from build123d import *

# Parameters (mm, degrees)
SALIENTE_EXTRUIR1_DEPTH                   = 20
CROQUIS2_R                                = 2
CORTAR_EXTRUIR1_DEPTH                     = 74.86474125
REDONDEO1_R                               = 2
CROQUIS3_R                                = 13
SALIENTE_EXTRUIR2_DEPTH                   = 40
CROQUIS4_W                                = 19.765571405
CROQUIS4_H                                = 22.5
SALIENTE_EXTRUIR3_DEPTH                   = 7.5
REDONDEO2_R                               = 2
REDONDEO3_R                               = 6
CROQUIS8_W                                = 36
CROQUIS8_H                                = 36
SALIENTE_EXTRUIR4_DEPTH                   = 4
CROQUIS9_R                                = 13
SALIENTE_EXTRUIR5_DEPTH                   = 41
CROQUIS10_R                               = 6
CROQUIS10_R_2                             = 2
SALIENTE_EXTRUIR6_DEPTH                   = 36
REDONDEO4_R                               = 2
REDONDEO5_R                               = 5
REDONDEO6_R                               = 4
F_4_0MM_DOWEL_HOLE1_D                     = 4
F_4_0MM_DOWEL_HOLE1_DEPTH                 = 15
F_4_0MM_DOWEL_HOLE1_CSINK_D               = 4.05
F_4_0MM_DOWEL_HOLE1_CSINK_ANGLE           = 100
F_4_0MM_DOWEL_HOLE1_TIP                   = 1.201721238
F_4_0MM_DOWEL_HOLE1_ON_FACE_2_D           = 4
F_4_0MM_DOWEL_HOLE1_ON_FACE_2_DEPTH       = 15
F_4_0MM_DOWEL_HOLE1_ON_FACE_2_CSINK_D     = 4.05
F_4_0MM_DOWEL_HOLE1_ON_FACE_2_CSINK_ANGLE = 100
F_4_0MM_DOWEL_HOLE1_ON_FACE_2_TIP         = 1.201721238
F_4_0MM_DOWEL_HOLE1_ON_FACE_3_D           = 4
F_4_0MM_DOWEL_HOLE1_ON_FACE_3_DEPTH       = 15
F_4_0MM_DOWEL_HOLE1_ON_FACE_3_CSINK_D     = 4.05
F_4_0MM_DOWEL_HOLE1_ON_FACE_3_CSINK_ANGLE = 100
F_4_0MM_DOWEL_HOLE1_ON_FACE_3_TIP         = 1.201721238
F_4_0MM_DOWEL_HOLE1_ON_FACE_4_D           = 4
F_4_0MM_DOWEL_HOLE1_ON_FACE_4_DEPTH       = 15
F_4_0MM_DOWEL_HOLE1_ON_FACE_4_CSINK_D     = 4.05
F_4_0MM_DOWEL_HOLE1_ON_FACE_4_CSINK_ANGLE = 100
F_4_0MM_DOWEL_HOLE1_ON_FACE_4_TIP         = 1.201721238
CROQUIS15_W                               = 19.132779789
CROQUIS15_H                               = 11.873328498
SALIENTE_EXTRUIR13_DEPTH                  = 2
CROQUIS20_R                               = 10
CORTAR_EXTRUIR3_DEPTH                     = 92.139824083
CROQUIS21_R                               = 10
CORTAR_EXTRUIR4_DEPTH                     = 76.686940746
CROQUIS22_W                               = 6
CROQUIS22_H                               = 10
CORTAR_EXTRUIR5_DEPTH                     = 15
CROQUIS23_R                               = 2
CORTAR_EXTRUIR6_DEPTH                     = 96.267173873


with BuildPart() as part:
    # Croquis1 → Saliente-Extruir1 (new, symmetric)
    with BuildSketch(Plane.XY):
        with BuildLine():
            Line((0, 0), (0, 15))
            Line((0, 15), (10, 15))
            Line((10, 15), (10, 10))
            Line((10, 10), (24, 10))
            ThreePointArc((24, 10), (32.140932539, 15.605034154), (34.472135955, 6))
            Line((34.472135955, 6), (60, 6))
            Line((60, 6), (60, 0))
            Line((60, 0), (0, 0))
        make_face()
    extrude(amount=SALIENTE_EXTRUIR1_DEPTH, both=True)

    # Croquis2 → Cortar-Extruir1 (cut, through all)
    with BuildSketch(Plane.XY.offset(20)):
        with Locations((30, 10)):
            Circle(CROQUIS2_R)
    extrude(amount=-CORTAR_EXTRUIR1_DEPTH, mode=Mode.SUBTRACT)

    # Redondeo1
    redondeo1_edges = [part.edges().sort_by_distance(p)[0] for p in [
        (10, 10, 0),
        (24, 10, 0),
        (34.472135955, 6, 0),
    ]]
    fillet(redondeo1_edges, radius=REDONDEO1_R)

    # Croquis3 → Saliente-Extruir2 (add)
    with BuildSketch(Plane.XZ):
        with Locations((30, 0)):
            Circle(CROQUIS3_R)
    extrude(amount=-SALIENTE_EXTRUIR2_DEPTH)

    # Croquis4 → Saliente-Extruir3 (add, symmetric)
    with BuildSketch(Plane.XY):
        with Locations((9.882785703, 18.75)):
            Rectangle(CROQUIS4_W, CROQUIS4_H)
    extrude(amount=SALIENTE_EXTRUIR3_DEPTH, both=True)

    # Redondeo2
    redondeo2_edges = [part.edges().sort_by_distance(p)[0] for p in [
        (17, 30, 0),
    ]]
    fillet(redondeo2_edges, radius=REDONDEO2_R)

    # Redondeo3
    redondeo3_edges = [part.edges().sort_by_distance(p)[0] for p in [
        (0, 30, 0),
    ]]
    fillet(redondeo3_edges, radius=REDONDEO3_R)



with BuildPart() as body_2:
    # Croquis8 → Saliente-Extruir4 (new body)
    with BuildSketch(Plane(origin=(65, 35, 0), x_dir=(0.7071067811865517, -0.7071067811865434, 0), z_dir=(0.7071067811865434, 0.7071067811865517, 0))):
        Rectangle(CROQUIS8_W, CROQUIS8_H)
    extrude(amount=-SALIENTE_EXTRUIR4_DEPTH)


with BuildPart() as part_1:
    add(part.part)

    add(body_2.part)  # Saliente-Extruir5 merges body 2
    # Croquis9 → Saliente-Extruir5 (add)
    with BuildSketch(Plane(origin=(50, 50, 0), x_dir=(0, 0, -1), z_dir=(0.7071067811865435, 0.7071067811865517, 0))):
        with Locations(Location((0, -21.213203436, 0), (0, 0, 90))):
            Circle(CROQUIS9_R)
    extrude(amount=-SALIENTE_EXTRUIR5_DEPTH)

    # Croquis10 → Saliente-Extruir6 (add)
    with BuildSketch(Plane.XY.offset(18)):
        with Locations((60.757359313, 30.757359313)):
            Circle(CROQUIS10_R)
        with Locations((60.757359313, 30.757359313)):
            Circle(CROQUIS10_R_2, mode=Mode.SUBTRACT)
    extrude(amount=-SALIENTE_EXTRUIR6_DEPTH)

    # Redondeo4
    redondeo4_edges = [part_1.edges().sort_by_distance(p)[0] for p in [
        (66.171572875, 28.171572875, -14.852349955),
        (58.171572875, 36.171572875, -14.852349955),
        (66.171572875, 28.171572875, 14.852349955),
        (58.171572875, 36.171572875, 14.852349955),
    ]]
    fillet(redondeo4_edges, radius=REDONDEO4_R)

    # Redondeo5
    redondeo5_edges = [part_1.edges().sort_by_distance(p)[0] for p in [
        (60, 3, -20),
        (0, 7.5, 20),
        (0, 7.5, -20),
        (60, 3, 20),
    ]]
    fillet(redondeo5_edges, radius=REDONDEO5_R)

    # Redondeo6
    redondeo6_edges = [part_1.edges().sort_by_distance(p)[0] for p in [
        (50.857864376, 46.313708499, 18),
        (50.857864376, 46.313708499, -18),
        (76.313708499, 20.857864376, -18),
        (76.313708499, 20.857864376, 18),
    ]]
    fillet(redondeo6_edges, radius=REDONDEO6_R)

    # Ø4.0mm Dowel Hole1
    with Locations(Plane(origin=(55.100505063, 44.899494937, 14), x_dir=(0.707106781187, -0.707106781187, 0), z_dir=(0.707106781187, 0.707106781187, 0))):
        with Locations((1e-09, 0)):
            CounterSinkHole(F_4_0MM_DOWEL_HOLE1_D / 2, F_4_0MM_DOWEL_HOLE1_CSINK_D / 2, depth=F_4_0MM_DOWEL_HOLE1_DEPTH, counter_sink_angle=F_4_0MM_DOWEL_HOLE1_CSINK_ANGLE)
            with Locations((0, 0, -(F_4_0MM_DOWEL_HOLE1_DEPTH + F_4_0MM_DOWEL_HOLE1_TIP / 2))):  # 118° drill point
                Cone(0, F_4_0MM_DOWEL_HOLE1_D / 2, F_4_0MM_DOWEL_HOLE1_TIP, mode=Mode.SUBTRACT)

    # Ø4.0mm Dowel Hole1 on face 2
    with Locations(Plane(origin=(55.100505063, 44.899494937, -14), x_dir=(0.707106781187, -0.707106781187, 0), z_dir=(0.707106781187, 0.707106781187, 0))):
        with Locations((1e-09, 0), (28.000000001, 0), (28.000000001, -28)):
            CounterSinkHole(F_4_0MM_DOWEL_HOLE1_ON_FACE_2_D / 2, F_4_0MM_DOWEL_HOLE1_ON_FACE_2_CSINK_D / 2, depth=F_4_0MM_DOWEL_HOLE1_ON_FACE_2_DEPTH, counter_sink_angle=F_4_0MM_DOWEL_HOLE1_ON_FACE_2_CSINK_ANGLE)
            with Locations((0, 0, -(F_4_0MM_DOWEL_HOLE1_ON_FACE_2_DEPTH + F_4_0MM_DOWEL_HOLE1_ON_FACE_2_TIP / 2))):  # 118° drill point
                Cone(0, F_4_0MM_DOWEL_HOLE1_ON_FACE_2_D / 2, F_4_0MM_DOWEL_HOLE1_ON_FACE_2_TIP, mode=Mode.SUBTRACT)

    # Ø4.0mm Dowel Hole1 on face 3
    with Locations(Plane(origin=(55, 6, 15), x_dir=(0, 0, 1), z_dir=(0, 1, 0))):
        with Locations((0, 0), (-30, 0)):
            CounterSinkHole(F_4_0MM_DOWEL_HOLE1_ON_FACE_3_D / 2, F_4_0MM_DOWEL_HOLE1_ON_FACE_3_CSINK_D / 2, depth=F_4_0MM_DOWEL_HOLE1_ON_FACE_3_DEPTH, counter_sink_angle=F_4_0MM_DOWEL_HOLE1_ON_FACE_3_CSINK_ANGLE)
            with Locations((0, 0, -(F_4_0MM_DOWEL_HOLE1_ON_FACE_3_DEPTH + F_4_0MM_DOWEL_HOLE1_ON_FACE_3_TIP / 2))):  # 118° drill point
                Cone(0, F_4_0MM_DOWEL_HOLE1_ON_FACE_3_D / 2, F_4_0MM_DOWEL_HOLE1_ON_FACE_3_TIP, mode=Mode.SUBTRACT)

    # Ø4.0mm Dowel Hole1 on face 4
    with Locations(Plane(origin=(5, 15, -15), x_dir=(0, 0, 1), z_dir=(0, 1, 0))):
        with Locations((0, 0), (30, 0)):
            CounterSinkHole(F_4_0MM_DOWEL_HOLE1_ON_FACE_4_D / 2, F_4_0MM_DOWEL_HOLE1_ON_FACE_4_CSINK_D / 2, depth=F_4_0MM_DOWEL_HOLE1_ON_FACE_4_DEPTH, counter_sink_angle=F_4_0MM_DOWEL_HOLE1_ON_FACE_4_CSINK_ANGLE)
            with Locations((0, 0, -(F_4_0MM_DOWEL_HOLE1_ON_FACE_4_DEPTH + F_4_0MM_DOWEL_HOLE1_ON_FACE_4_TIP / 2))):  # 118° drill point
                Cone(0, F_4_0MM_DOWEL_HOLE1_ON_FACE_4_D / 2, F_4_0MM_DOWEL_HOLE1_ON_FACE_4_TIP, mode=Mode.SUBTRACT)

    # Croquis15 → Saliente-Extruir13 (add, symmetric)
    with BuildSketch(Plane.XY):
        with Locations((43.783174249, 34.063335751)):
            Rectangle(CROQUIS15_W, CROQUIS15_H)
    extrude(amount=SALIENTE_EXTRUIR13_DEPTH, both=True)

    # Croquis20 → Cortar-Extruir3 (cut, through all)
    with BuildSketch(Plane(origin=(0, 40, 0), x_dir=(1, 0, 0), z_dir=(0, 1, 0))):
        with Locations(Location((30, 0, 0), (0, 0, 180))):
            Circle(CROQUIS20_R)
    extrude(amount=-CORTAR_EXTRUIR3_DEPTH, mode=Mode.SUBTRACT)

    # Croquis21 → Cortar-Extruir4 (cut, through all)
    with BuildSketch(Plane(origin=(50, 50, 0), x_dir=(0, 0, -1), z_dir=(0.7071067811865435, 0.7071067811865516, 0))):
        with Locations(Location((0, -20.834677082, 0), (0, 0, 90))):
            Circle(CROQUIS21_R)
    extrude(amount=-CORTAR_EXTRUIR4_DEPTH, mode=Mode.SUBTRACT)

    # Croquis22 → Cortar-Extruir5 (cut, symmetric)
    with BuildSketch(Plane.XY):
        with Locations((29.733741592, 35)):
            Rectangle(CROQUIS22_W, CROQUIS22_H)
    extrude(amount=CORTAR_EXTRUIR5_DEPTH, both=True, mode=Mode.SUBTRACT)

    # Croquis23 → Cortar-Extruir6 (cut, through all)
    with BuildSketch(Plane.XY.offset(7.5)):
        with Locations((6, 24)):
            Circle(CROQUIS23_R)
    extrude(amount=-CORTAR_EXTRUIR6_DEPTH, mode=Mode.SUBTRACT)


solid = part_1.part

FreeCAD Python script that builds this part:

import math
import FreeCAD as App
import Part
import Sketcher
Q = App.Units.Quantity


def edges_at(feature, points):
    """Names of the edges that pass closest to the given points."""
    edges = feature.Shape.Edges
    near = lambda p: min(range(len(edges)), key=lambda i: edges[i].distToShape(Part.Vertex(*p))[0])
    return sorted({f"Edge{near(p) + 1}" for p in points})

doc = App.newDocument("Part")
body = doc.addObject("PartDesign::Body", "Body")

sketch1 = doc.addObject("Sketcher::SketchObject", "Sketch")
body.addObject(sketch1)
sketch1.AttachmentSupport = (doc.XY_Plane, [""])
sketch1.MapMode = "FlatFace"
sketch1.addGeometry([
    Part.LineSegment(App.Vector(0, 15, 0), App.Vector(0, 0, 0)),
    Part.LineSegment(App.Vector(0, 0, 0), App.Vector(60, 0, 0)),
    Part.LineSegment(App.Vector(60, 0, 0), App.Vector(60, 6, 0)),
    Part.LineSegment(App.Vector(60, 6, 0), App.Vector(34.472136, 6, 0)),
    Part.ArcOfCircle(Part.Circle(App.Vector(30, 10, 0), App.Vector(0, 0, 1), 6), math.radians(-41.810315), math.radians(180)),
    Part.LineSegment(App.Vector(24, 10, 0), App.Vector(10, 10, 0)),
    Part.LineSegment(App.Vector(10, 10, 0), App.Vector(10, 15, 0)),
    Part.LineSegment(App.Vector(10, 15, 0), App.Vector(0, 15, 0)),
], False)
sketch1.addConstraint([
    Sketcher.Constraint("Coincident", 0, 2, 1, 1),
    Sketcher.Constraint("Coincident", 1, 2, 2, 1),
    Sketcher.Constraint("Coincident", 2, 2, 3, 1),
    Sketcher.Constraint("Coincident", 3, 2, 4, 1),
    Sketcher.Constraint("Coincident", 4, 2, 5, 1),
    Sketcher.Constraint("Coincident", 5, 2, 6, 1),
    Sketcher.Constraint("Coincident", 6, 2, 7, 1),
    Sketcher.Constraint("Coincident", 7, 2, 0, 1),
    Sketcher.Constraint("Vertical", 0),
    Sketcher.Constraint("Horizontal", 1),
    Sketcher.Constraint("Vertical", 2),
    Sketcher.Constraint("Horizontal", 3),
    Sketcher.Constraint("Horizontal", 5),
    Sketcher.Constraint("Vertical", 6),
    Sketcher.Constraint("Horizontal", 7),
    Sketcher.Constraint("Coincident", 0, 2, -1, 1),
    Sketcher.Constraint("Radius", 4, Q("6 mm")),
    Sketcher.Constraint("DistanceX", 1, 1, 1, 2, Q("60 mm")),
    Sketcher.Constraint("DistanceX", 5, 2, 5, 1, Q("14 mm")),
    Sketcher.Constraint("DistanceX", 7, 2, 7, 1, Q("10 mm")),
    Sketcher.Constraint("DistanceY", 0, 2, 0, 1, Q("15 mm")),
    Sketcher.Constraint("DistanceY", 2, 1, 2, 2, Q("6 mm")),
    Sketcher.Constraint("DistanceY", 6, 1, 6, 2, Q("5 mm")),
    Sketcher.Constraint("DistanceY", -1, 1, 4, 3, Q("10 mm")),
])
pad1 = doc.addObject("PartDesign::Pad", "Pad")
body.addObject(pad1)
pad1.Profile = sketch1
pad1.Length = 40
pad1.Midplane = True

sketch2 = doc.addObject("Sketcher::SketchObject", "Sketch001")
body.addObject(sketch2)
sketch2.AttachmentSupport = (doc.XY_Plane, [""])
sketch2.MapMode = "FlatFace"
sketch2.AttachmentOffset = App.Placement(App.Vector(0, 0, 20), App.Rotation())
sketch2.addGeometry(Part.Circle(App.Vector(30, 10, 0), App.Vector(0, 0, 1), 2), False)
sketch2.addConstraint([
    Sketcher.Constraint("Diameter", 0, Q("4 mm")),
    Sketcher.Constraint("DistanceX", -1, 1, 0, 3, Q("30 mm")),
    Sketcher.Constraint("DistanceY", -1, 1, 0, 3, Q("10 mm")),
])
pocket1 = doc.addObject("PartDesign::Pocket", "Pocket")
body.addObject(pocket1)
pocket1.Profile = sketch2
pocket1.Type = "ThroughAll"
doc.recompute()

fillet = doc.addObject("PartDesign::Fillet", "Fillet")
body.addObject(fillet)
fillet.Base = (pocket1, edges_at(pocket1, [(10, 10, 0), (24, 10, 0), (34.472, 6, 0)]))
fillet.Radius = 2

sketch3 = doc.addObject("Sketcher::SketchObject", "Sketch002")
body.addObject(sketch3)
sketch3.AttachmentSupport = (doc.XZ_Plane, [""])
sketch3.MapMode = "FlatFace"
sketch3.addGeometry(Part.Circle(App.Vector(30, 0, 0), App.Vector(0, 0, 1), 13), False)
sketch3.addConstraint([
    Sketcher.Constraint("PointOnObject", 0, 3, -1),
    Sketcher.Constraint("Diameter", 0, Q("26 mm")),
    Sketcher.Constraint("DistanceX", -1, 1, 0, 3, Q("30 mm")),
])
pad2 = doc.addObject("PartDesign::Pad", "Pad001")
body.addObject(pad2)
pad2.Profile = sketch3
pad2.Length = 40
pad2.Reversed = True

sketch4 = doc.addObject("Sketcher::SketchObject", "Sketch003")
body.addObject(sketch4)
sketch4.AttachmentSupport = (doc.XY_Plane, [""])
sketch4.MapMode = "FlatFace"
sketch4.addGeometry([
    Part.LineSegment(App.Vector(0, 30, 0), App.Vector(0, 7.5, 0)),
    Part.LineSegment(App.Vector(0, 7.5, 0), App.Vector(19.765571, 7.5, 0)),
    Part.LineSegment(App.Vector(19.765571, 7.5, 0), App.Vector(19.765571, 30, 0)),
    Part.LineSegment(App.Vector(19.765571, 30, 0), App.Vector(0, 30, 0)),
], False)
sketch4.addConstraint([
    Sketcher.Constraint("Coincident", 0, 2, 1, 1),
    Sketcher.Constraint("Coincident", 1, 2, 2, 1),
    Sketcher.Constraint("Coincident", 2, 2, 3, 1),
    Sketcher.Constraint("Coincident", 3, 2, 0, 1),
    Sketcher.Constraint("Vertical", 0),
    Sketcher.Constraint("Horizontal", 1),
    Sketcher.Constraint("Vertical", 2),
    Sketcher.Constraint("Horizontal", 3),
    Sketcher.Constraint("PointOnObject", 0, 2, -2),
    Sketcher.Constraint("DistanceY", 0, 2, 0, 1, Q("22.5 mm")),
    Sketcher.Constraint("DistanceY", -1, 1, 2, 2, Q("30 mm")),
    Sketcher.Constraint("DistanceX", 1, 1, 1, 2, Q("19.765571 mm")),
])
pad3 = doc.addObject("PartDesign::Pad", "Pad002")
body.addObject(pad3)
pad3.Profile = sketch4
pad3.Length = 15
pad3.Midplane = True
doc.recompute()

fillet2 = doc.addObject("PartDesign::Fillet", "Fillet001")
body.addObject(fillet2)
fillet2.Base = (pad3, edges_at(pad3, [(17, 30, 0)]))
fillet2.Radius = 2
doc.recompute()

fillet3 = doc.addObject("PartDesign::Fillet", "Fillet002")
body.addObject(fillet3)
fillet3.Base = (fillet2, edges_at(fillet2, [(0, 30, 0)]))
fillet3.Radius = 6
body2 = doc.addObject("PartDesign::Body", "Body001")

sketch5 = doc.addObject("Sketcher::SketchObject", "Sketch004")
body2.addObject(sketch5)
sketch5.Placement = App.Placement(App.Vector(65, 35, 0), App.Rotation(App.Vector(0.707106781, -0.707106781, 0), App.Vector(0, 0, -0.999999999), App.Vector(0.707106781, 0.707106781, 0), "ZXY"))
sketch5.addGeometry([
    Part.LineSegment(App.Vector(-18, 18, 0), App.Vector(-18, -18, 0)),
    Part.LineSegment(App.Vector(-18, -18, 0), App.Vector(18, -18, 0)),
    Part.LineSegment(App.Vector(18, -18, 0), App.Vector(18, 18, 0)),
    Part.LineSegment(App.Vector(18, 18, 0), App.Vector(-18, 18, 0)),
], False)
sketch5.addConstraint([
    Sketcher.Constraint("Coincident", 0, 2, 1, 1),
    Sketcher.Constraint("Coincident", 1, 2, 2, 1),
    Sketcher.Constraint("Coincident", 2, 2, 3, 1),
    Sketcher.Constraint("Coincident", 3, 2, 0, 1),
    Sketcher.Constraint("Vertical", 0),
    Sketcher.Constraint("Horizontal", 1),
    Sketcher.Constraint("Vertical", 2),
    Sketcher.Constraint("Horizontal", 3),
    Sketcher.Constraint("Symmetric", 0, 2, 2, 2, -1, 1),
    Sketcher.Constraint("Equal", 3, 0),
    Sketcher.Constraint("DistanceX", 1, 1, 1, 2, Q("36 mm")),
])
pad4 = doc.addObject("PartDesign::Pad", "Pad003")
body2.addObject(pad4)
pad4.Profile = sketch5
pad4.Length = 4
pad4.Reversed = True
body.AllowCompound = True
doc.recompute()

boolean = doc.addObject("PartDesign::Boolean", "Boolean")
body.addObject(boolean)
boolean.Type = "Fuse"
boolean.addObjects([body2])

sketch6 = doc.addObject("Sketcher::SketchObject", "Sketch005")
body.addObject(sketch6)
sketch6.Placement = App.Placement(App.Vector(50, 50, 0), App.Rotation(App.Vector(0, 0, -1), App.Vector(-0.707106781, 0.707106781, 0), App.Vector(0.707106781, 0.707106781, 0), "ZXY"))
sketch6.addGeometry(Part.Circle(App.Vector(0, -21.213203, 0), App.Vector(0, 0, 1), 13), False)
sketch6.addConstraint([
    Sketcher.Constraint("PointOnObject", 0, 3, -2),
    Sketcher.Constraint("Diameter", 0, Q("26 mm")),
    Sketcher.Constraint("DistanceY", 0, 3, -1, 1, Q("21.213203 mm")),
])
pad5 = doc.addObject("PartDesign::Pad", "Pad004")
body.addObject(pad5)
pad5.Profile = sketch6
pad5.Length = 41
pad5.Reversed = True

sketch7 = doc.addObject("Sketcher::SketchObject", "Sketch006")
body.addObject(sketch7)
sketch7.AttachmentSupport = (doc.XY_Plane, [""])
sketch7.MapMode = "FlatFace"
sketch7.AttachmentOffset = App.Placement(App.Vector(0, 0, 18), App.Rotation())
sketch7.addGeometry([
    Part.Circle(App.Vector(60.757359, 30.757359, 0), App.Vector(0, 0, 1), 6),
    Part.Circle(App.Vector(60.757359, 30.757359, 0), App.Vector(0, 0, 1), 2),
], False)
sketch7.addConstraint([
    Sketcher.Constraint("Coincident", 1, 3, 0, 3),
    Sketcher.Constraint("Diameter", 0, Q("12 mm")),
    Sketcher.Constraint("Diameter", 1, Q("4 mm")),
    Sketcher.Constraint("DistanceX", -1, 1, 0, 3, Q("60.757359 mm")),
    Sketcher.Constraint("DistanceY", -1, 1, 0, 3, Q("30.757359 mm")),
])
pad6 = doc.addObject("PartDesign::Pad", "Pad005")
body.addObject(pad6)
pad6.Profile = sketch7
pad6.Length = 36
pad6.Reversed = True
doc.recompute()

fillet4 = doc.addObject("PartDesign::Fillet", "Fillet003")
body.addObject(fillet4)
fillet4.Base = (pad6, edges_at(pad6, [
    (66.172, 28.172, -14.852),
    (58.172, 36.172, -14.852),
    (66.172, 28.172, 14.852),
    (58.172, 36.172, 14.852),
]))
fillet4.Radius = 2
doc.recompute()

fillet5 = doc.addObject("PartDesign::Fillet", "Fillet004")
body.addObject(fillet5)
fillet5.Base = (fillet4, edges_at(fillet4, [
    (60, 3, -20),
    (0, 7.5, 20),
    (0, 7.5, -20),
    (60, 3, 20),
]))
fillet5.Radius = 5
doc.recompute()

fillet6 = doc.addObject("PartDesign::Fillet", "Fillet005")
body.addObject(fillet6)
fillet6.Base = (fillet5, edges_at(fillet5, [
    (50.858, 46.314, 18),
    (50.858, 46.314, -18),
    (76.314, 20.858, -18),
    (76.314, 20.858, 18),
]))
fillet6.Radius = 4

sketch8 = doc.addObject("Sketcher::SketchObject", "Sketch007")
body.addObject(sketch8)
sketch8.Placement = App.Placement(App.Vector(50, 50, 0), App.Rotation(App.Vector(0.707106781, -0.707106781, 0), App.Vector(0, 0, -0.999999999), App.Vector(0.707106781, 0.707106781, 0), "ZXY"))
sketch8.addGeometry(Part.Circle(App.Vector(7.213203, -14, 0), App.Vector(0, 0, 1), 2), False)
sketch8.addConstraint([
    Sketcher.Constraint("Diameter", 0, Q("4 mm")),
    Sketcher.Constraint("DistanceY", 0, 3, -1, 1, Q("14 mm")),
    Sketcher.Constraint("DistanceX", -1, 1, 0, 3, Q("7.213203 mm")),
])
doc.recompute()
hole = doc.addObject("PartDesign::Hole", "Hole")
body.addObject(hole)
hole.Profile = sketch8
hole.ThreadType = "None"
hole.Diameter = 4
hole.DepthType = "Dimension"
hole.Depth = 15
hole.DrillPoint = "Angled"
hole.DrillPointAngle = 118
hole.HoleCutType = "Countersink"
hole.HoleCutDiameter = 4.05
hole.HoleCutCountersinkAngle = 100

sketch9 = doc.addObject("Sketcher::SketchObject", "Sketch008")
body.addObject(sketch9)
sketch9.Placement = App.Placement(App.Vector(50, 50, 0), App.Rotation(App.Vector(0.707106781, -0.707106781, 0), App.Vector(0, 0, -0.999999999), App.Vector(0.707106781, 0.707106781, 0), "ZXY"))
sketch9.addGeometry([
    Part.Circle(App.Vector(7.213203, 14, 0), App.Vector(0, 0, 1), 2),
    Part.Circle(App.Vector(35.213203, 14, 0), App.Vector(0, 0, 1), 2),
    Part.Circle(App.Vector(35.213203, -14, 0), App.Vector(0, 0, 1), 2),
], False)
sketch9.addConstraint([
    Sketcher.Constraint("Equal", 0, 1),
    Sketcher.Constraint("Equal", 1, 2),
    Sketcher.Constraint("Symmetric", 1, 3, 2, 3, -1),
    Sketcher.Constraint("Horizontal", 0, 3, 1, 3),
    Sketcher.Constraint("Diameter", 0, Q("4 mm")),
    Sketcher.Constraint("DistanceY", -1, 1, 0, 3, Q("14 mm")),
    Sketcher.Constraint("DistanceX", 0, 3, 1, 3, Q("28 mm")),
    Sketcher.Constraint("DistanceX", -1, 1, 0, 3, Q("7.213203 mm")),
])
doc.recompute()
hole2 = doc.addObject("PartDesign::Hole", "Hole001")
body.addObject(hole2)
hole2.Profile = sketch9
hole2.ThreadType = "None"
hole2.Diameter = 4
hole2.DepthType = "Dimension"
hole2.Depth = 15
hole2.DrillPoint = "Angled"
hole2.DrillPointAngle = 118
hole2.HoleCutType = "Countersink"
hole2.HoleCutDiameter = 4.05
hole2.HoleCutCountersinkAngle = 100

sketch10 = doc.addObject("Sketcher::SketchObject", "Sketch009")
body.addObject(sketch10)
sketch10.AttachmentSupport = (doc.XZ_Plane, [""])
sketch10.MapMode = "FlatFace"
sketch10.AttachmentOffset = App.Placement(App.Vector(0, 0, -6), App.Rotation())
sketch10.addGeometry([
    Part.Circle(App.Vector(55, 15, 0), App.Vector(0, 0, 1), 2),
    Part.Circle(App.Vector(55, -15, 0), App.Vector(0, 0, 1), 2),
], False)
sketch10.addConstraint([
    Sketcher.Constraint("Equal", 0, 1),
    Sketcher.Constraint("Symmetric", 0, 3, 1, 3, -1),
    Sketcher.Constraint("Diameter", 0, Q("4 mm")),
    Sketcher.Constraint("DistanceX", -1, 1, 0, 3, Q("55 mm")),
    Sketcher.Constraint("DistanceY", -1, 1, 0, 3, Q("15 mm")),
])
doc.recompute()
hole3 = doc.addObject("PartDesign::Hole", "Hole002")
body.addObject(hole3)
hole3.Profile = sketch10
hole3.ThreadType = "None"
hole3.Diameter = 4
hole3.DepthType = "Dimension"
hole3.Depth = 15
hole3.DrillPoint = "Angled"
hole3.DrillPointAngle = 118
hole3.HoleCutType = "Countersink"
hole3.HoleCutDiameter = 4.05
hole3.HoleCutCountersinkAngle = 100
hole3.Reversed = True

sketch11 = doc.addObject("Sketcher::SketchObject", "Sketch010")
body.addObject(sketch11)
sketch11.AttachmentSupport = (doc.XZ_Plane, [""])
sketch11.MapMode = "FlatFace"
sketch11.AttachmentOffset = App.Placement(App.Vector(0, 0, -15), App.Rotation())
sketch11.addGeometry([
    Part.Circle(App.Vector(5, -15, 0), App.Vector(0, 0, 1), 2),
    Part.Circle(App.Vector(5, 15, 0), App.Vector(0, 0, 1), 2),
], False)
sketch11.addConstraint([
    Sketcher.Constraint("Equal", 0, 1),
    Sketcher.Constraint("Symmetric", 0, 3, 1, 3, -1),
    Sketcher.Constraint("Diameter", 0, Q("4 mm")),
    Sketcher.Constraint("DistanceX", -1, 1, 0, 3, Q("5 mm")),
    Sketcher.Constraint("DistanceY", 0, 3, -1, 1, Q("15 mm")),
])
doc.recompute()
hole4 = doc.addObject("PartDesign::Hole", "Hole003")
body.addObject(hole4)
hole4.Profile = sketch11
hole4.ThreadType = "None"
hole4.Diameter = 4
hole4.DepthType = "Dimension"
hole4.Depth = 15
hole4.DrillPoint = "Angled"
hole4.DrillPointAngle = 118
hole4.HoleCutType = "Countersink"
hole4.HoleCutDiameter = 4.05
hole4.HoleCutCountersinkAngle = 100
hole4.Reversed = True

sketch12 = doc.addObject("Sketcher::SketchObject", "Sketch011")
body.addObject(sketch12)
sketch12.AttachmentSupport = (doc.XY_Plane, [""])
sketch12.MapMode = "FlatFace"
sketch12.addGeometry([
    Part.LineSegment(App.Vector(34.216784, 40, 0), App.Vector(34.216784, 28.126672, 0)),
    Part.LineSegment(App.Vector(34.216784, 28.126672, 0), App.Vector(53.349564, 28.126672, 0)),
    Part.LineSegment(App.Vector(53.349564, 28.126672, 0), App.Vector(53.349564, 40, 0)),
    Part.LineSegment(App.Vector(53.349564, 40, 0), App.Vector(34.216784, 40, 0)),
], False)
sketch12.addConstraint([
    Sketcher.Constraint("Coincident", 0, 2, 1, 1),
    Sketcher.Constraint("Coincident", 1, 2, 2, 1),
    Sketcher.Constraint("Coincident", 2, 2, 3, 1),
    Sketcher.Constraint("Coincident", 3, 2, 0, 1),
    Sketcher.Constraint("Vertical", 0),
    Sketcher.Constraint("Horizontal", 1),
    Sketcher.Constraint("Vertical", 2),
    Sketcher.Constraint("Horizontal", 3),
    Sketcher.Constraint("DistanceY", -1, 1, 2, 2, Q("40 mm")),
    Sketcher.Constraint("DistanceX", 1, 1, 1, 2, Q("19.13278 mm")),
    Sketcher.Constraint("DistanceY", 0, 2, 0, 1, Q("11.873328 mm")),
    Sketcher.Constraint("DistanceX", -1, 1, 0, 2, Q("34.216784 mm")),
])
pad7 = doc.addObject("PartDesign::Pad", "Pad006")
body.addObject(pad7)
pad7.Profile = sketch12
pad7.Length = 4
pad7.Midplane = True

sketch13 = doc.addObject("Sketcher::SketchObject", "Sketch012")
body.addObject(sketch13)
sketch13.AttachmentSupport = (doc.XZ_Plane, [""])
sketch13.MapMode = "FlatFace"
sketch13.AttachmentOffset = App.Placement(App.Vector(0, 0, -40), App.Rotation())
sketch13.addGeometry(Part.Circle(App.Vector(30, 0, 0), App.Vector(0, 0, 1), 10), False)
sketch13.addConstraint([
    Sketcher.Constraint("PointOnObject", 0, 3, -1),
    Sketcher.Constraint("Diameter", 0, Q("20 mm")),
    Sketcher.Constraint("DistanceX", -1, 1, 0, 3, Q("30 mm")),
])
pocket2 = doc.addObject("PartDesign::Pocket", "Pocket001")
body.addObject(pocket2)
pocket2.Profile = sketch13
pocket2.Type = "ThroughAll"
pocket2.Reversed = True

sketch14 = doc.addObject("Sketcher::SketchObject", "Sketch013")
body.addObject(sketch14)
sketch14.Placement = App.Placement(App.Vector(50, 50, 0), App.Rotation(App.Vector(0, 0, -1), App.Vector(-0.707106781, 0.707106781, 0), App.Vector(0.707106781, 0.707106781, 0), "ZXY"))
sketch14.addGeometry(Part.Circle(App.Vector(0, -20.834677, 0), App.Vector(0, 0, 1), 10), False)
sketch14.addConstraint([
    Sketcher.Constraint("PointOnObject", 0, 3, -2),
    Sketcher.Constraint("Diameter", 0, Q("20 mm")),
    Sketcher.Constraint("DistanceY", 0, 3, -1, 1, Q("20.834677 mm")),
])
pocket3 = doc.addObject("PartDesign::Pocket", "Pocket002")
body.addObject(pocket3)
pocket3.Profile = sketch14
pocket3.Type = "ThroughAll"

sketch15 = doc.addObject("Sketcher::SketchObject", "Sketch014")
body.addObject(sketch15)
sketch15.AttachmentSupport = (doc.XY_Plane, [""])
sketch15.MapMode = "FlatFace"
sketch15.addGeometry([
    Part.LineSegment(App.Vector(26.733742, 40, 0), App.Vector(26.733742, 30, 0)),
    Part.LineSegment(App.Vector(26.733742, 30, 0), App.Vector(32.733742, 30, 0)),
    Part.LineSegment(App.Vector(32.733742, 30, 0), App.Vector(32.733742, 40, 0)),
    Part.LineSegment(App.Vector(32.733742, 40, 0), App.Vector(26.733742, 40, 0)),
], False)
sketch15.addConstraint([
    Sketcher.Constraint("Coincident", 0, 2, 1, 1),
    Sketcher.Constraint("Coincident", 1, 2, 2, 1),
    Sketcher.Constraint("Coincident", 2, 2, 3, 1),
    Sketcher.Constraint("Coincident", 3, 2, 0, 1),
    Sketcher.Constraint("Vertical", 0),
    Sketcher.Constraint("Horizontal", 1),
    Sketcher.Constraint("Vertical", 2),
    Sketcher.Constraint("Horizontal", 3),
    Sketcher.Constraint("DistanceX", 1, 1, 1, 2, Q("6 mm")),
    Sketcher.Constraint("DistanceY", 0, 2, 0, 1, Q("10 mm")),
    Sketcher.Constraint("DistanceY", -1, 1, 0, 2, Q("30 mm")),
    Sketcher.Constraint("DistanceX", -1, 1, 0, 2, Q("26.733742 mm")),
])
pocket4 = doc.addObject("PartDesign::Pocket", "Pocket003")
body.addObject(pocket4)
pocket4.Profile = sketch15
pocket4.Length = 30
pocket4.Midplane = True

sketch16 = doc.addObject("Sketcher::SketchObject", "Sketch015")
body.addObject(sketch16)
sketch16.AttachmentSupport = (doc.XY_Plane, [""])
sketch16.MapMode = "FlatFace"
sketch16.AttachmentOffset = App.Placement(App.Vector(0, 0, 7.5), App.Rotation())
sketch16.addGeometry(Part.Circle(App.Vector(6, 24, 0), App.Vector(0, 0, 1), 2), False)
sketch16.addConstraint([
    Sketcher.Constraint("Diameter", 0, Q("4 mm")),
    Sketcher.Constraint("DistanceX", -1, 1, 0, 3, Q("6 mm")),
    Sketcher.Constraint("DistanceY", -1, 1, 0, 3, Q("24 mm")),
])
pocket5 = doc.addObject("PartDesign::Pocket", "Pocket004")
body.addObject(pocket5)
pocket5.Profile = sketch16
pocket5.Type = "ThroughAll"

doc.recompute()
